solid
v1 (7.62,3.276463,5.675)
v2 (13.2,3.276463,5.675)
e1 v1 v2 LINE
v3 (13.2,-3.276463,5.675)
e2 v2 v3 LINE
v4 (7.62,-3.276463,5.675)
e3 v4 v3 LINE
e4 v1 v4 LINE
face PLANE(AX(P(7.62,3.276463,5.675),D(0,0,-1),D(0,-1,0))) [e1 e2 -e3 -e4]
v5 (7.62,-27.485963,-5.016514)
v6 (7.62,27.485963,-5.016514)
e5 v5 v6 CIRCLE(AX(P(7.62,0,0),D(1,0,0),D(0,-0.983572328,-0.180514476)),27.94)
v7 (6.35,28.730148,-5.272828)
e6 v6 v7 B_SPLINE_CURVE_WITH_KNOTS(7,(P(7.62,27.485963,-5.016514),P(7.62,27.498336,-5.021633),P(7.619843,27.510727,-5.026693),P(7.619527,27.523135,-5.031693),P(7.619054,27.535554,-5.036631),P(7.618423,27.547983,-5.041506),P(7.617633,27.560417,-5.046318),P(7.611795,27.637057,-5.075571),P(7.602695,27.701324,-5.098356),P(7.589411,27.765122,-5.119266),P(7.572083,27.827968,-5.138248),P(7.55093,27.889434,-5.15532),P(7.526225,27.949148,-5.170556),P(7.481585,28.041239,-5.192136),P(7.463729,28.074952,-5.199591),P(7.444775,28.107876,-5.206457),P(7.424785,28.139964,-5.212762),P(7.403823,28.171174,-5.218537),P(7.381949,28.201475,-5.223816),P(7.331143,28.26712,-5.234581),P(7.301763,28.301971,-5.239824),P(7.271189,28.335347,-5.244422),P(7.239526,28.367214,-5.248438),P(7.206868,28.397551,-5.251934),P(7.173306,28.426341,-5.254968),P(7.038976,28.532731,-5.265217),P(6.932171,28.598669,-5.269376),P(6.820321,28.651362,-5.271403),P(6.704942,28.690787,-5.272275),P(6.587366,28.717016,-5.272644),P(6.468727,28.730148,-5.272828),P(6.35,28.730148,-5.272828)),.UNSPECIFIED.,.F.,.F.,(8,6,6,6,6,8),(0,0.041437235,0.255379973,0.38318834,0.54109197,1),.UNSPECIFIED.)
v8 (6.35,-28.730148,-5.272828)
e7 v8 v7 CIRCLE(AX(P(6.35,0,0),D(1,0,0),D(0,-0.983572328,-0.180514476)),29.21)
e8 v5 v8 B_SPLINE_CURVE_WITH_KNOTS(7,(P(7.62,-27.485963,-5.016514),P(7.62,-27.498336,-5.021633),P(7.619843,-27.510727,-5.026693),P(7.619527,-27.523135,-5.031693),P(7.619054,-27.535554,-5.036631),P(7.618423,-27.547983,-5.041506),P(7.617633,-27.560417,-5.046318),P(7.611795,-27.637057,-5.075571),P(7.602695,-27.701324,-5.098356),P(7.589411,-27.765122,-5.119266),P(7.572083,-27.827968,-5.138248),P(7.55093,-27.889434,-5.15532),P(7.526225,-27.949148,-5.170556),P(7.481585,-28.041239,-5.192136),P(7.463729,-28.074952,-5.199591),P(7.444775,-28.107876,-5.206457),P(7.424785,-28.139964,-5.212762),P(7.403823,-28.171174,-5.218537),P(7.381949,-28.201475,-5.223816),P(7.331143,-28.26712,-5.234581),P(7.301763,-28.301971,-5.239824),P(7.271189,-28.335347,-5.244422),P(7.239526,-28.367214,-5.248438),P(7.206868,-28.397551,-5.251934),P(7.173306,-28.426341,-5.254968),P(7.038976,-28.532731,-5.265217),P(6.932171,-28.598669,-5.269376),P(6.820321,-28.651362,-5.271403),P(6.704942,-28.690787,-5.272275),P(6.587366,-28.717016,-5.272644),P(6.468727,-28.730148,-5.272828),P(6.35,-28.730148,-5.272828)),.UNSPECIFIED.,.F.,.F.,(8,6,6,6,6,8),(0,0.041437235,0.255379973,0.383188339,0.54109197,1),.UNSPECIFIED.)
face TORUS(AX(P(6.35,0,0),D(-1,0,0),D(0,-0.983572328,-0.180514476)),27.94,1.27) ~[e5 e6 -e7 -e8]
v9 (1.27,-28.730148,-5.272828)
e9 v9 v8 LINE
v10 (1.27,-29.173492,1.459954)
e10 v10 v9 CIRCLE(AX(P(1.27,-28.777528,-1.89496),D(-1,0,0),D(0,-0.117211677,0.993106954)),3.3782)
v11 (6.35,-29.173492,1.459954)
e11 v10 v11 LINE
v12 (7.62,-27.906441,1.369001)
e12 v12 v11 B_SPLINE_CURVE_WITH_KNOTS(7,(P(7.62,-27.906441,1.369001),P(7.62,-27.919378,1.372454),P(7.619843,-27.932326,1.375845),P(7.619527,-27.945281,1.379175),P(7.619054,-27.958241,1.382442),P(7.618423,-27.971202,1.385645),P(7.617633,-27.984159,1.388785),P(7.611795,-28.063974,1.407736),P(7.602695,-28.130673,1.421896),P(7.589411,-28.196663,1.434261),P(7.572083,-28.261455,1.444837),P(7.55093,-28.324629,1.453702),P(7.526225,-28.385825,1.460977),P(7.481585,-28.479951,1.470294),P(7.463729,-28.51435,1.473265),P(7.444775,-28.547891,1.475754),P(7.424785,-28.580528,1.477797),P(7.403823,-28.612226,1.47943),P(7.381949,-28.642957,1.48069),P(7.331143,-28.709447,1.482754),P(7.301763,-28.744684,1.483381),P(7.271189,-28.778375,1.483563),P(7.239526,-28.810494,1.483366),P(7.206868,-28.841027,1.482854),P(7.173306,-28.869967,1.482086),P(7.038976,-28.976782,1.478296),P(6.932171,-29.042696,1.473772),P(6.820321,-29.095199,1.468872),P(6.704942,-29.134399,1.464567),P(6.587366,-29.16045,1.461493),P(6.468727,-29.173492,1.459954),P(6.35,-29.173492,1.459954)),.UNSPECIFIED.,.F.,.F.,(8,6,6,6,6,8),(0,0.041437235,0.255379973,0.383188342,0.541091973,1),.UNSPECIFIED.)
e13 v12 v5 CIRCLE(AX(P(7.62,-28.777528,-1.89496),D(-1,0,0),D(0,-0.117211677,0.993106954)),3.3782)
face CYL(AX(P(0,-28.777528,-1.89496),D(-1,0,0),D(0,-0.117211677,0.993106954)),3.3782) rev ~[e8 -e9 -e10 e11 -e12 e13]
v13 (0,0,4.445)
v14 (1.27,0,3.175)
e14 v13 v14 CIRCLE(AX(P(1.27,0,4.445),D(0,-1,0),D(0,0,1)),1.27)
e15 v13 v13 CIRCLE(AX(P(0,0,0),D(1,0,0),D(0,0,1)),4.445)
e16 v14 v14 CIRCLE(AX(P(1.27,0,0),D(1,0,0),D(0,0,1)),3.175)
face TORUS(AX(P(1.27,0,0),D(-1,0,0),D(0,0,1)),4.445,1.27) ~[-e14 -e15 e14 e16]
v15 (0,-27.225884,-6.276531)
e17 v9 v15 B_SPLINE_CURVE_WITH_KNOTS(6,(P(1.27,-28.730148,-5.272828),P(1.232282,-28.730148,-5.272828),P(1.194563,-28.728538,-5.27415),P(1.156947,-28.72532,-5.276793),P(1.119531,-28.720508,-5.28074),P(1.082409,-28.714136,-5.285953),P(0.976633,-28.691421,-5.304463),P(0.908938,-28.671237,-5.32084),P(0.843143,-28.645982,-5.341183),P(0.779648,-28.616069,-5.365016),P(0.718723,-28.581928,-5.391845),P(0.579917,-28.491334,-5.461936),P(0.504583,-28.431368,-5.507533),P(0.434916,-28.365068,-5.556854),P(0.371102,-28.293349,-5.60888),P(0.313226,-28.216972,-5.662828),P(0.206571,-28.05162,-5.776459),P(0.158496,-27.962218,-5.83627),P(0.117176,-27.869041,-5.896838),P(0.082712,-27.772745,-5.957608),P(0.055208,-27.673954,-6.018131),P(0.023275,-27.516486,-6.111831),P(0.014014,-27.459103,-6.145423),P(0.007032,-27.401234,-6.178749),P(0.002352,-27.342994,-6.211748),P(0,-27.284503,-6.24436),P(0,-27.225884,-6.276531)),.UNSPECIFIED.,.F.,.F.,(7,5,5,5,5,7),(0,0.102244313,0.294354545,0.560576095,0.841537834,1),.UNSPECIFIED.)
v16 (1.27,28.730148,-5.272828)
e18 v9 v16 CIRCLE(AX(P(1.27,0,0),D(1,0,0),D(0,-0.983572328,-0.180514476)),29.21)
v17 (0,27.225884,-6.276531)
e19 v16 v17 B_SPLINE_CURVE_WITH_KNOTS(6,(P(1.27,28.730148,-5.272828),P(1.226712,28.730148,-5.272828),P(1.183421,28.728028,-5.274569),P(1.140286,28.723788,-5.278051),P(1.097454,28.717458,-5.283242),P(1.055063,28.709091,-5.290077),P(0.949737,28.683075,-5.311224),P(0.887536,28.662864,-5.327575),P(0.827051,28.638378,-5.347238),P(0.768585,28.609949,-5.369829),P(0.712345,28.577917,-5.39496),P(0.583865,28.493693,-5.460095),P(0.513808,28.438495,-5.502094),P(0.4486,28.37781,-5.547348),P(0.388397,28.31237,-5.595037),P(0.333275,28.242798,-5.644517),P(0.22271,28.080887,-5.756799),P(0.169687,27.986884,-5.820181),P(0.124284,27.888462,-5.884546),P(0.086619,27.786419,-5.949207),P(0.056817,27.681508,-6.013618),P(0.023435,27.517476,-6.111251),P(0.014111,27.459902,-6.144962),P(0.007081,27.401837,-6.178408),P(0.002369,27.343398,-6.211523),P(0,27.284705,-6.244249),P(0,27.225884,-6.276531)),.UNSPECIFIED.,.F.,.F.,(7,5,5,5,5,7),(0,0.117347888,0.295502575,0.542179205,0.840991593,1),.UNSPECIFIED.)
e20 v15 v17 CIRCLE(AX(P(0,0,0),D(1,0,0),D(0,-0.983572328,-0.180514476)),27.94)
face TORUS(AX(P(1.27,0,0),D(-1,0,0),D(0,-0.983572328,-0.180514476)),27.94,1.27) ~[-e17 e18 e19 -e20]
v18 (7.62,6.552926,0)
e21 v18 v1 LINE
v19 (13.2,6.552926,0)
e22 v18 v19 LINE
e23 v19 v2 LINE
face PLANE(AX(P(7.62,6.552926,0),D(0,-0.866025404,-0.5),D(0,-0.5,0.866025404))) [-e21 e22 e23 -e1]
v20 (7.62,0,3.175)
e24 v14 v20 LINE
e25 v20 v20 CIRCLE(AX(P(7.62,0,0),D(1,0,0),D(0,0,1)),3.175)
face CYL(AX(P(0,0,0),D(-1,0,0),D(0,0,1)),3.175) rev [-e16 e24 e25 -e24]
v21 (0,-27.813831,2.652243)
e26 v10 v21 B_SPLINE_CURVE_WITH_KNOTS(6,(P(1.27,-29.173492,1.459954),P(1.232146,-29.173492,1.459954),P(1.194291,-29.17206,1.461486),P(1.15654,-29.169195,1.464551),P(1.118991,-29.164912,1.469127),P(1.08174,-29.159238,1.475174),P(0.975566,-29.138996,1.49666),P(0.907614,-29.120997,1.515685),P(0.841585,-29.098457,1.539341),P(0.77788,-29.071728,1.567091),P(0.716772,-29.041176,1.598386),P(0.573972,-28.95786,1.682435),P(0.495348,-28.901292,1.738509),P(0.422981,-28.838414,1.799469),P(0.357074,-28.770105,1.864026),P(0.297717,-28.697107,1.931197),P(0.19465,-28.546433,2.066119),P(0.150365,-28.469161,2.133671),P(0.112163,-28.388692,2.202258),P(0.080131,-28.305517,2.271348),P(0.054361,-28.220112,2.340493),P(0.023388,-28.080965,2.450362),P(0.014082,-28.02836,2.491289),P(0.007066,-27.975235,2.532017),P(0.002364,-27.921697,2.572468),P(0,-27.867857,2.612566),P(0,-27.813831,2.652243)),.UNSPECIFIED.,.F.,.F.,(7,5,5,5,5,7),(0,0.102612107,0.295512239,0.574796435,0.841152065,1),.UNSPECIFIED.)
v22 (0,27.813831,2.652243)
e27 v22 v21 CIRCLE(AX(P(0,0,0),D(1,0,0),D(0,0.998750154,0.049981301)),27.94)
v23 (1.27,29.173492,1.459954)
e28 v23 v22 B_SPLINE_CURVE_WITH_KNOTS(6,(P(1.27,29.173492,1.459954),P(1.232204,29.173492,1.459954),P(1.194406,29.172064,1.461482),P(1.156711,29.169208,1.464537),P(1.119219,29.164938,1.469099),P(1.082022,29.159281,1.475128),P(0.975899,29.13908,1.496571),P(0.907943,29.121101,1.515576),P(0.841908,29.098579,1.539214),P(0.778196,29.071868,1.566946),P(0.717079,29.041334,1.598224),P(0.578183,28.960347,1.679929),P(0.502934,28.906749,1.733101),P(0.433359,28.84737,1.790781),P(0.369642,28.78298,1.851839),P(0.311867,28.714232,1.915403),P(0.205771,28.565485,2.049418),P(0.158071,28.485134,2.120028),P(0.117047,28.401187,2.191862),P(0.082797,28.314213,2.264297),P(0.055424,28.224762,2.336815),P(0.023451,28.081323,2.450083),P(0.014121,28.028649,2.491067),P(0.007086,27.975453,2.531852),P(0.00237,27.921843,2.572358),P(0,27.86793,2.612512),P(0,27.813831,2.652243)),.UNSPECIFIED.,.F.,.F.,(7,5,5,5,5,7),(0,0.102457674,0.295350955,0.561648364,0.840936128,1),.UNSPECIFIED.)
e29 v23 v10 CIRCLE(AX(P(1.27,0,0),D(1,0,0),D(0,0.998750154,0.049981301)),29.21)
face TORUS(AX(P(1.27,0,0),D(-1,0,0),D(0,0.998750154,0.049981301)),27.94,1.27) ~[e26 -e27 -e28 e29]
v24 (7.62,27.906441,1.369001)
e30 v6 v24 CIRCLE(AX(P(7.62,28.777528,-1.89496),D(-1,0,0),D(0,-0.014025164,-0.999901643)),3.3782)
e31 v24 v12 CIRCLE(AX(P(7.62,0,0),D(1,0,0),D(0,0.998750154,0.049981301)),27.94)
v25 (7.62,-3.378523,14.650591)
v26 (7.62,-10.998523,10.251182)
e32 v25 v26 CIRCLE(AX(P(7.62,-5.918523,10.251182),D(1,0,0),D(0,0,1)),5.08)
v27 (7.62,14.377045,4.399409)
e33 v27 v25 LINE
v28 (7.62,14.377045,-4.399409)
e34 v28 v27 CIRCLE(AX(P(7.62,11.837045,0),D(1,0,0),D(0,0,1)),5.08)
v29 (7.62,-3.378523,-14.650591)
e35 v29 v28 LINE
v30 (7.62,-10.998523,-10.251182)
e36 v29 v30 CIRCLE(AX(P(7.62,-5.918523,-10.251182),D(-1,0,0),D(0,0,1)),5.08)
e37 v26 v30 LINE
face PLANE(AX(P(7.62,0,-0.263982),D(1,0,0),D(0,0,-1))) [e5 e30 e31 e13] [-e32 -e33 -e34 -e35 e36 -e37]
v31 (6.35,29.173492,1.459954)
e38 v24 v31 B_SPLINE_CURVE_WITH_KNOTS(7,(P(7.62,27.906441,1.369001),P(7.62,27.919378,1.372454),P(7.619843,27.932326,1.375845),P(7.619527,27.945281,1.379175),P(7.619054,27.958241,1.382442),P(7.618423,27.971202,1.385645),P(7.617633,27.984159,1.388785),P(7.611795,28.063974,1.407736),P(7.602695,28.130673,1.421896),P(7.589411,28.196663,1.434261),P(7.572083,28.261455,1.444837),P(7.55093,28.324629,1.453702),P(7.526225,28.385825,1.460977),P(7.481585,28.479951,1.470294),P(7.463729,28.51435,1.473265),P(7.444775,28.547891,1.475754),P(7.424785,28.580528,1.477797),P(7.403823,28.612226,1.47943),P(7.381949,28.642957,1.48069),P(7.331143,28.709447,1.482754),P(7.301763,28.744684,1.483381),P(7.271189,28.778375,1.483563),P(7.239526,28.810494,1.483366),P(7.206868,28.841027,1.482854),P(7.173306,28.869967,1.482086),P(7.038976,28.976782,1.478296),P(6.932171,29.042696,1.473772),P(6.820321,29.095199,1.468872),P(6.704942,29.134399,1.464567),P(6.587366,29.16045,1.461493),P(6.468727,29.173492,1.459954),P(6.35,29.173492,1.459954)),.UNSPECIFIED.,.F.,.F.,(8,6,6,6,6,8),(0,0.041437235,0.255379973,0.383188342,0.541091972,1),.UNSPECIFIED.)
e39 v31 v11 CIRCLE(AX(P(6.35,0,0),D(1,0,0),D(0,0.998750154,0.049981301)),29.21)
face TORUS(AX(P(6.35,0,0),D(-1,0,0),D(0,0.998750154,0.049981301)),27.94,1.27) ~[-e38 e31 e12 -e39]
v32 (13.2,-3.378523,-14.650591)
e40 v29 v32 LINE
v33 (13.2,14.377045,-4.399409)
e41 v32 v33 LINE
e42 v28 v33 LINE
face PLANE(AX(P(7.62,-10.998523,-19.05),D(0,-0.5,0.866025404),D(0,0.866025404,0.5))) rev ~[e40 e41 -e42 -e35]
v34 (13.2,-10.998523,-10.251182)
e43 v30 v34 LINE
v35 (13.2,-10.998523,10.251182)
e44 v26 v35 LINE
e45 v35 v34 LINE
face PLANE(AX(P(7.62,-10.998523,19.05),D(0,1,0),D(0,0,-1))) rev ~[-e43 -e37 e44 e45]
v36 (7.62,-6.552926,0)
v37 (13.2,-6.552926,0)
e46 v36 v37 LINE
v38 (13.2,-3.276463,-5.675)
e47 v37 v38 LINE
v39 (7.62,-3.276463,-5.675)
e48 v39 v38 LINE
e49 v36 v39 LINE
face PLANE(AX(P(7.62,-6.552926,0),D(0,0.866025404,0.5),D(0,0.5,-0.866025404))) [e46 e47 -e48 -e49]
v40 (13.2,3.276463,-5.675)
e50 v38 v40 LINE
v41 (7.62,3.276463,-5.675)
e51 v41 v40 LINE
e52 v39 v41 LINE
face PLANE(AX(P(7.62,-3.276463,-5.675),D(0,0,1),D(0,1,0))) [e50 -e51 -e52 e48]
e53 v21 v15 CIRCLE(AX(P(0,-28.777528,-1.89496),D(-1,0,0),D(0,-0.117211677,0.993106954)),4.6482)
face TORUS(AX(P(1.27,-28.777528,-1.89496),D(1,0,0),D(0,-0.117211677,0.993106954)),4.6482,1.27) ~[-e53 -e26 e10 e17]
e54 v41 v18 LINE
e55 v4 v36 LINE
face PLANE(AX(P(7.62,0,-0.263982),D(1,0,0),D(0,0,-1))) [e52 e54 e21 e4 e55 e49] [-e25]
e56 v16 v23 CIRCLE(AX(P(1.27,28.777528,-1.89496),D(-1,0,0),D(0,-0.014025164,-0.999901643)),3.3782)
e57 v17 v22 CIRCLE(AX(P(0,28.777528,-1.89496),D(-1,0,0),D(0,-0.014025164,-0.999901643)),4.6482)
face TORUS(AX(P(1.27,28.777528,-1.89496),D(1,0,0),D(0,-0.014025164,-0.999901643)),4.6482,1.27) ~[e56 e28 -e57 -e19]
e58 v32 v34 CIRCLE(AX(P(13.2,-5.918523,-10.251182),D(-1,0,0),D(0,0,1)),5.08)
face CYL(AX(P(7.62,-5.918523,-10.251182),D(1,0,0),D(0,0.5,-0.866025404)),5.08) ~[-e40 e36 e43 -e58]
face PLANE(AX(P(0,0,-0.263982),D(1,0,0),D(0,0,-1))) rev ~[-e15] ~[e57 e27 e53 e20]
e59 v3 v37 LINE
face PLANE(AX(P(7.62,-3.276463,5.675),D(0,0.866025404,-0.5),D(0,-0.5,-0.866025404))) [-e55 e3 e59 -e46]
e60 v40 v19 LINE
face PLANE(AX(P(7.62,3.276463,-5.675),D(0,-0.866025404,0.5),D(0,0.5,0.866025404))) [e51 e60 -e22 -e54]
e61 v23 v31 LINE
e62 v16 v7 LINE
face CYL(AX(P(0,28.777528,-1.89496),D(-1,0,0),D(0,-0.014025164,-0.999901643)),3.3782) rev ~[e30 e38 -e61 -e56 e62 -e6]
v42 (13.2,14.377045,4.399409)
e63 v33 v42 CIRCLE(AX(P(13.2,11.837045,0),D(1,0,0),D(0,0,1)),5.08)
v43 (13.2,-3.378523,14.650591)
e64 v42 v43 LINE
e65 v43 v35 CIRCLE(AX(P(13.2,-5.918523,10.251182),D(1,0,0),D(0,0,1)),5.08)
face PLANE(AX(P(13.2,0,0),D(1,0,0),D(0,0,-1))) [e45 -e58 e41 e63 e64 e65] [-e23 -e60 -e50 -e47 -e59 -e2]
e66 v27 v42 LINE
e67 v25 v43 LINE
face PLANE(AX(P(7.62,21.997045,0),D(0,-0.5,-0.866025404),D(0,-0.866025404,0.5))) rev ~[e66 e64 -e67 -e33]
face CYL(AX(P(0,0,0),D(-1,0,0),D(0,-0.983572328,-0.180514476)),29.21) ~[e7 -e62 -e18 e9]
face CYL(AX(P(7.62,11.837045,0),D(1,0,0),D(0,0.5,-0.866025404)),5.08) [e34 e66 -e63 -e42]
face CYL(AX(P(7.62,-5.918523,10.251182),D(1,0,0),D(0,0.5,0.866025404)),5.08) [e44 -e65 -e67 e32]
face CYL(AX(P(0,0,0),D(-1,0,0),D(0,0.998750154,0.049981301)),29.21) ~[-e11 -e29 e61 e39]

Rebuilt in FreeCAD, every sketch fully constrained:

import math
import FreeCAD as App
import Part
import Sketcher
from FreeCAD import Vector
Q = App.Units.Quantity


def edges_at(feature, points):
    """Names of the edges that pass closest to the given points."""
    edges = feature.Shape.Edges
    near = lambda p: min(range(len(edges)), key=lambda i: edges[i].distToShape(Part.Vertex(*p))[0])
    return sorted({f"Edge{near(p) + 1}" for p in points})

doc = App.newDocument("Part")
params = doc.addObject("Spreadsheet::Sheet", "Params")
for row, (alias, value) in enumerate([
    ("sketch1_diameter", "0.25 in"),
    ("sketch1_radius", "1.15 in"),
    ("sketch1_radius2", "0.133 in"),
    ("pad1_length", "0.3 in"),
    ("sketch2_height", "1.5 in"),
    ("pad2_length", "5.58 mm"),
    ("fillet_radius", "0.2 in"),
    ("fillet2_radius", "0.05 in"),
], start=1):
    params.set(f"A{row}", alias)
    params.set(f"B{row}", "=" + value)
    params.setAlias(f"B{row}", alias)

body = doc.addObject("PartDesign::Body", "Body")

# Sketch on YZ plane
sketch1 = body.newObject("Sketcher::SketchObject", "Sketch")
sketch1.AttachmentSupport = (doc.getObject("YZ_Plane"), [""])
sketch1.MapMode = "FlatFace"
sketch1.addGeometry([
    Part.ArcOfCircle(Part.Circle(Vector(0, 0, 0), Vector(0, 0, 1), 29.2), math.radians(-170), math.radians(-10)),  # 0
    Part.ArcOfCircle(Part.Circle(Vector(28.8, -1.9, 0), Vector(0, 0, 1), 3.4), math.radians(83), math.radians(269)),  # 1
    Part.ArcOfCircle(Part.Circle(Vector(0, 0, 0), Vector(0, 0, 1), 29.2), math.radians(3), math.radians(177)),  # 2
    Part.ArcOfCircle(Part.Circle(Vector(-28.8, -1.9, 0), Vector(0, 0, 1), 3.4), math.radians(-89), math.radians(97)),  # 3
    Part.Circle(Vector(0, 0, 0), Vector(0, 0, 1), 3.2),  # 4
], False)
sketch1.addConstraint([
    Sketcher.Constraint("Coincident", 0, 2, 1, 2),
    Sketcher.Constraint("Coincident", 1, 1, 2, 1),
    Sketcher.Constraint("Coincident", 2, 2, 3, 2),
    Sketcher.Constraint("Coincident", 3, 1, 0, 1),
    Sketcher.Constraint("Coincident", 0, 3, -1, 1),
    Sketcher.Constraint("Coincident", 2, 3, -1, 1),
    Sketcher.Constraint("Coincident", 4, 3, -1, 1),
    Sketcher.Constraint("Equal", 0, 2),
    Sketcher.Constraint("Equal", 1, 3),
    Sketcher.Constraint("Symmetric", 1, 3, 3, 3, -2),
    Sketcher.Constraint("Diameter", 4, Q("0.25 in")),
    Sketcher.Constraint("Radius", 0, Q("1.15 in")),
    Sketcher.Constraint("Radius", 1, Q("0.133 in")),
    Sketcher.Constraint("DistanceY", 1, 3, -1, 1, Q("1.89496 mm")),
    Sketcher.Constraint("DistanceX", 0, 2, 1, 3, Q("0.04738 mm")),
])
sketch1.setExpression("Constraints[10]", "Params.sketch1_diameter")
sketch1.setExpression("Constraints[11]", "Params.sketch1_radius")
sketch1.setExpression("Constraints[12]", "Params.sketch1_radius2")
pad1 = body.newObject("PartDesign::Pad", "Pad")
pad1.Profile = sketch1
pad1.setExpression("Length", "Params.pad1_length")

# Sketch on YZ plane
sketch2 = body.newObject("Sketcher::SketchObject", "Sketch001")
sketch2.AttachmentSupport = (doc.getObject("YZ_Plane"), [""])
sketch2.MapMode = "FlatFace"
sketch2.AttachmentOffset = App.Placement(Vector(0, 0, 0.3 * 25.4), App.Rotation())
sketch2.addGeometry([
    Part.LineSegment(Vector(-11, -19, 0), Vector(22, 0, 0)),  # 0
    Part.LineSegment(Vector(22, 0, 0), Vector(-11, 19, 0)),  # 1
    Part.LineSegment(Vector(-11, 19, 0), Vector(-11, -19, 0)),  # 2
    Part.LineSegment(Vector(-3, 6, 0), Vector(3, 6, 0)),  # 3
    Part.LineSegment(Vector(3, 6, 0), Vector(7, 0, 0)),  # 4
    Part.LineSegment(Vector(7, 0, 0), Vector(3, -6, 0)),  # 5
    Part.LineSegment(Vector(3, -6, 0), Vector(-3, -6, 0)),  # 6
    Part.LineSegment(Vector(-3, -6, 0), Vector(-7, 0, 0)),  # 7
    Part.LineSegment(Vector(-7, 0, 0), Vector(-3, 6, 0)),  # 8
], False)
sketch2.addConstraint([
    Sketcher.Constraint("Coincident", 0, 2, 1, 1),
    Sketcher.Constraint("Coincident", 1, 2, 2, 1),
    Sketcher.Constraint("Coincident", 2, 2, 0, 1),
    Sketcher.Constraint("Coincident", 3, 2, 4, 1),
    Sketcher.Constraint("Coincident", 4, 2, 5, 1),
    Sketcher.Constraint("Coincident", 5, 2, 6, 1),
    Sketcher.Constraint("Coincident", 6, 2, 7, 1),
    Sketcher.Constraint("Coincident", 7, 2, 8, 1),
    Sketcher.Constraint("Coincident", 8, 2, 3, 1),
    Sketcher.Constraint("Vertical", 2),
    Sketcher.Constraint("Horizontal", 3),
    Sketcher.Constraint("Horizontal", 6),
    Sketcher.Constraint("Symmetric", 3, 2, 6, 2, -1, 1),
    Sketcher.Constraint("Symmetric", 4, 2, 7, 2, -1, 1),
    Sketcher.Constraint("PointOnObject", 0, 2, -1),
    Sketcher.Constraint("PointOnObject", 4, 2, -1),
    Sketcher.Constraint("Perpendicular", 0, 4),
    Sketcher.Constraint("Perpendicular", 1, 5),
    Sketcher.Constraint("Parallel", 5, 8),
    Sketcher.Constraint("Vertical", 3, 2, 5, 2),
    Sketcher.Constraint("DistanceY", 2, 2, 2, 1, Q("1.5 in")),
    Sketcher.Constraint("Angle", 0, Q("30 deg")),
    Sketcher.Constraint("DistanceY", -1, 1, 3, 2, Q("5.675 mm")),
    Sketcher.Constraint("DistanceX", 3, 1, 3, 2, Q("6.552926 mm")),
    Sketcher.Constraint("DistanceX", 4, 2, 0, 2, Q("15.44412 mm")),
])
sketch2.setExpression("Constraints[20]", "Params.sketch2_height")
pad2 = body.newObject("PartDesign::Pad", "Pad001")
pad2.Profile = sketch2
pad2.setExpression("Length", "Params.pad2_length")
doc.recompute()

fillet = body.newObject("PartDesign::Fillet", "Fillet")
fillet.Base = (pad2, edges_at(pad2, [(10.41, -10.999, 19.05), (10.41, -10.999, -19.05), (10.41, 21.997, 0)]))
fillet.setExpression("Radius", "Params.fillet_radius")
doc.recompute()

fillet2 = body.newObject("PartDesign::Fillet", "Fillet001")
fillet2.Base = (fillet, edges_at(fillet, [
    (0, 0, -3.175),
    (7.62, 0, -29.21),
    (7.62, 0, 29.21),
    (0, 25.407, -1.673),
    (0, 0, -29.21),
    (0, -25.407, -1.673),
    (0, 0, 29.21),
]))
fillet2.setExpression("Radius", "Params.fillet2_radius")

doc.recompute()
